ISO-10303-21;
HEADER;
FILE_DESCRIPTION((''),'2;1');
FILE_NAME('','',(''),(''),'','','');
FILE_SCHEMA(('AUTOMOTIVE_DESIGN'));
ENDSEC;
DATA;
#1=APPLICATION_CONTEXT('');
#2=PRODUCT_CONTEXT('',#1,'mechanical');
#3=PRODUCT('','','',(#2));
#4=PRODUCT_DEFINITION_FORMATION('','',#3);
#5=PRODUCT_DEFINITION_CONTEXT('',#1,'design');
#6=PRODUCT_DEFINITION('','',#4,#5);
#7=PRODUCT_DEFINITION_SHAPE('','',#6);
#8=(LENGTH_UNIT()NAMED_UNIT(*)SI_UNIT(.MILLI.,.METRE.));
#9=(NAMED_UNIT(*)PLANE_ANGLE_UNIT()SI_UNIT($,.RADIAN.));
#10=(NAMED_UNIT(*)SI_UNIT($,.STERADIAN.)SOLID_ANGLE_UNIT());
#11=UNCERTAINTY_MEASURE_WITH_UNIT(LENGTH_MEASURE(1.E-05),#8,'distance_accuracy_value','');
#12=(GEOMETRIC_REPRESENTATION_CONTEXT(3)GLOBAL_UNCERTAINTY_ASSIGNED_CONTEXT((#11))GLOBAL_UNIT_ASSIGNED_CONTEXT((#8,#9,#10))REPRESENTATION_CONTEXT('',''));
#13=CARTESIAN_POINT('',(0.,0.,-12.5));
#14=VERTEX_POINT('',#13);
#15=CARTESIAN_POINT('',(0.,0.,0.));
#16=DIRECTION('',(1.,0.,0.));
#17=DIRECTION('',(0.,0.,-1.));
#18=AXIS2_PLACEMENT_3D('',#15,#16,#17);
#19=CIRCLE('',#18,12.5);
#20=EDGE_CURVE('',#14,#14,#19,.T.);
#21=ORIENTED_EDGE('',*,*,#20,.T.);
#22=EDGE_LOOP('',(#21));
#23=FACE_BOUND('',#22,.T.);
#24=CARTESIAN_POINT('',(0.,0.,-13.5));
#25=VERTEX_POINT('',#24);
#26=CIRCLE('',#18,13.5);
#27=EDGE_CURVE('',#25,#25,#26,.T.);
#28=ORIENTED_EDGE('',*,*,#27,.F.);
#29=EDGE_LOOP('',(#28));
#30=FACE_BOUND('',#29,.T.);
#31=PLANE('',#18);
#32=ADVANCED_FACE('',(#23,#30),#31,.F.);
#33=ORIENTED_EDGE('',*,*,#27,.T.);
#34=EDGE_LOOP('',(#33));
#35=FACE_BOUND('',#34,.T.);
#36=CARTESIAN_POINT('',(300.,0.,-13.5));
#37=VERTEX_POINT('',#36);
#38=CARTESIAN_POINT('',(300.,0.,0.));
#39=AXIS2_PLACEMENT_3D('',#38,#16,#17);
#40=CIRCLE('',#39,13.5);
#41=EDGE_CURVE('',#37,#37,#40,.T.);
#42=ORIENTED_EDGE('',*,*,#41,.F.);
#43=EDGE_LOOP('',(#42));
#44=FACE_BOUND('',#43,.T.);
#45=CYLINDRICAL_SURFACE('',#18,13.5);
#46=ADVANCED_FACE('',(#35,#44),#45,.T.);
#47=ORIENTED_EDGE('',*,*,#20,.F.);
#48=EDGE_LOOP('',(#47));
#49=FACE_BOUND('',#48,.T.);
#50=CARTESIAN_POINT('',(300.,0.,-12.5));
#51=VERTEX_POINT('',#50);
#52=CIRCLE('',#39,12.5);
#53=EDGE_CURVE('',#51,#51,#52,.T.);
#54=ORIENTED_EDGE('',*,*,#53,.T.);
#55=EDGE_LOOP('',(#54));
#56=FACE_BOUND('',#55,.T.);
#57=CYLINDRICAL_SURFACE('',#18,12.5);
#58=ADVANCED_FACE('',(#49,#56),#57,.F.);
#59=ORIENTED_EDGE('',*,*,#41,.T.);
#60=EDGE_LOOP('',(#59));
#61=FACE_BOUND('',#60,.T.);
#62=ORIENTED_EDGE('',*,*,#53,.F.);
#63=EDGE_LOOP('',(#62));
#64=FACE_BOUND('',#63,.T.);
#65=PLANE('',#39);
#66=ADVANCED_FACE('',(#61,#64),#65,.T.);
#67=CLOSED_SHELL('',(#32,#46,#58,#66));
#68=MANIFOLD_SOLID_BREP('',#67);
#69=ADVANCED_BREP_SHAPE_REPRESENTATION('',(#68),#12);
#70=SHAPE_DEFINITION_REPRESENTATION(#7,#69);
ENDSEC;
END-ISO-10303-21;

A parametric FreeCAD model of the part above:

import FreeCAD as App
import Part
import Sketcher

V = App.Vector
Q = App.Units.Quantity

doc = App.newDocument("Part")
body = doc.addObject("PartDesign::Body", "Body")

# Sketch on YZ plane
sketch1 = body.newObject("Sketcher::SketchObject", "Sketch")
sketch1.AttachmentSupport = (doc.getObject("YZ_Plane"), [""])
sketch1.MapMode = "FlatFace"
sketch1.addGeometry(Part.Circle(V(0, 0, 0), V(0, 0, 1), 14), False)
sketch1.addGeometry(Part.Circle(V(0, 0, 0), V(0, 0, 1), 12), False)
sketch1.addConstraint(Sketcher.Constraint("Coincident", 0, 3, -1, 1))
sketch1.addConstraint(Sketcher.Constraint("Coincident", 1, 3, -1, 1))
sketch1.addConstraint(Sketcher.Constraint("Diameter", 0, Q("27 mm")))
sketch1.addConstraint(Sketcher.Constraint("Diameter", 1, Q("25 mm")))

# Sketch on XY plane
sketch2 = body.newObject("Sketcher::SketchObject", "Sketch001")
sketch2.AttachmentSupport = (doc.getObject("XY_Plane"), [""])
sketch2.MapMode = "FlatFace"
sketch2.addGeometry(Part.LineSegment(V(0, 0, 0), V(300, 0, 0)), False)
sketch2.addConstraint(Sketcher.Constraint("Horizontal", 0))
sketch2.addConstraint(Sketcher.Constraint("Coincident", 0, 1, -1, 1))
sketch2.addConstraint(Sketcher.Constraint("DistanceX", 0, 1, 0, 2, Q("300 mm")))
doc.recompute()

additivepipe = body.newObject("PartDesign::AdditivePipe", "AdditivePipe")
additivepipe.Profile = sketch1
additivepipe.Spine = (sketch2, ["Edge1"])

doc.recompute()
